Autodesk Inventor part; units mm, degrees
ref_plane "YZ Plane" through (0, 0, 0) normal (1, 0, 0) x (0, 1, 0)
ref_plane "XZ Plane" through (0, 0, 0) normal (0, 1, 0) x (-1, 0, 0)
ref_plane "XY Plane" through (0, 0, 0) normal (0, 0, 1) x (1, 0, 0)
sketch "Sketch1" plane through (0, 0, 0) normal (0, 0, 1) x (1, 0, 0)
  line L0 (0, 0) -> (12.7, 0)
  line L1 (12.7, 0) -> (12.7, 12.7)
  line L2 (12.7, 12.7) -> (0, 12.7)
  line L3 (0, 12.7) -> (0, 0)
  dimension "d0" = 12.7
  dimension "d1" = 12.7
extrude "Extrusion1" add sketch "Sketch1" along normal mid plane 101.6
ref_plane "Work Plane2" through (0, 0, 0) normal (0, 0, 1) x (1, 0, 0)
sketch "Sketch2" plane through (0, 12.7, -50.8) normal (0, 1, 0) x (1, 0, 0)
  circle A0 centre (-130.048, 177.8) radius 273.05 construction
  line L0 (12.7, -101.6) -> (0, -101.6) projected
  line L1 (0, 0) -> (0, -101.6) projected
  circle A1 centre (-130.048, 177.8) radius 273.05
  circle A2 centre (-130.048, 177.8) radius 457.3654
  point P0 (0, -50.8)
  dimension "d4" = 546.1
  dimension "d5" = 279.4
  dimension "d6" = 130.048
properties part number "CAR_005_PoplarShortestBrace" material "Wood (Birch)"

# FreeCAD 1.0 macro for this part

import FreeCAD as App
import Part
import Sketcher
Q = App.Units.Quantity

doc = App.newDocument("Part")
body = doc.addObject("PartDesign::Body", "Body")

sketch1 = body.newObject("Sketcher::SketchObject", "Sketch")
sketch1.AttachmentSupport = (doc.getObject("XY_Plane"), [""])
sketch1.MapMode = "FlatFace"
sketch1.addGeometry(Part.LineSegment(App.Vector(0, 12.7, 0), App.Vector(0, 0, 0)), False)
sketch1.addGeometry(Part.LineSegment(App.Vector(0, 0, 0), App.Vector(12.7, 0, 0)), False)
sketch1.addGeometry(Part.LineSegment(App.Vector(12.7, 0, 0), App.Vector(12.7, 12.7, 0)), False)
sketch1.addGeometry(Part.LineSegment(App.Vector(12.7, 12.7, 0), App.Vector(0, 12.7, 0)), False)
sketch1.addConstraint(Sketcher.Constraint("Coincident", 0, 2, 1, 1))
sketch1.addConstraint(Sketcher.Constraint("Coincident", 1, 2, 2, 1))
sketch1.addConstraint(Sketcher.Constraint("Coincident", 2, 2, 3, 1))
sketch1.addConstraint(Sketcher.Constraint("Coincident", 3, 2, 0, 1))
sketch1.addConstraint(Sketcher.Constraint("Vertical", 0))
sketch1.addConstraint(Sketcher.Constraint("Horizontal", 1))
sketch1.addConstraint(Sketcher.Constraint("Vertical", 2))
sketch1.addConstraint(Sketcher.Constraint("Horizontal", 3))
sketch1.addConstraint(Sketcher.Constraint("Coincident", 0, 2, -1, 1))
sketch1.addConstraint(Sketcher.Constraint("Equal", 3, 0))
sketch1.addConstraint(Sketcher.Constraint("DistanceX", 1, 1, 1, 2, Q("0.5 in")))
pad1 = body.newObject("PartDesign::Pad", "Pad")
pad1.Profile = sketch1
pad1.Length = Q("4 in")
pad1.Midplane = True

doc.recompute()
